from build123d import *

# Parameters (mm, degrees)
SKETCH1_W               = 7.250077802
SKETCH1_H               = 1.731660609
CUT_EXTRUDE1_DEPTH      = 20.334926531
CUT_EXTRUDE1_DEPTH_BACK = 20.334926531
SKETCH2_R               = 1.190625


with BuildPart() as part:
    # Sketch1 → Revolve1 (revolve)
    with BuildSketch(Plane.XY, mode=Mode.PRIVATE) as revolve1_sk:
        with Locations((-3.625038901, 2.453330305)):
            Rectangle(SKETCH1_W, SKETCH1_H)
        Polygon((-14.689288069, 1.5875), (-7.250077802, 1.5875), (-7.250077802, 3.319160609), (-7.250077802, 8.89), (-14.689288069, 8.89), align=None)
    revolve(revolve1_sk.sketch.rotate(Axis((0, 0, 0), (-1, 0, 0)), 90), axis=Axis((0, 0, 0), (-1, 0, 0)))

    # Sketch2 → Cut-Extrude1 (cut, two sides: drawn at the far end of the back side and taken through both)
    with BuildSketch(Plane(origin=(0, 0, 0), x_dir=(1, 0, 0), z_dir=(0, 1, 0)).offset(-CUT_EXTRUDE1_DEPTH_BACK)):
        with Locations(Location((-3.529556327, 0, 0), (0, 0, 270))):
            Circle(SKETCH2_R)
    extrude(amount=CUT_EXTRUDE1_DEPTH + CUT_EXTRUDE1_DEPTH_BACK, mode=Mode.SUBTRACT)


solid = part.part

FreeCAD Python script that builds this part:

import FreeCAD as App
import Part
import Sketcher

V = App.Vector
Q = App.Units.Quantity


def add_polygon(sketch, points):
    """Adds a closed chain of lines whose ends are joined by coincident constraints."""
    first, n = sketch.GeometryCount, len(points)
    for a, b in zip(points, points[1:] + points[:1]):
        sketch.addGeometry(Part.LineSegment(App.Vector(*a, 0), App.Vector(*b, 0)), False)
    for i in range(n):
        sketch.addConstraint(Sketcher.Constraint("Coincident", first + i, 2, first + (i + 1) % n, 1))

doc = App.newDocument("Part")
params = doc.addObject("Spreadsheet::Sheet", "Params")
for row, (alias, value) in enumerate([
    ("revolution_angle", "360 deg"),
    ("sketch2_diameter", "0.09375 in"),
], start=1):
    params.set(f"A{row}", alias)
    params.set(f"B{row}", "=" + value)
    params.setAlias(f"B{row}", alias)

body = doc.addObject("PartDesign::Body", "Body")

# Sketch on XY plane
sketch1 = body.newObject("Sketcher::SketchObject", "Sketch")
sketch1.AttachmentSupport = (doc.getObject("XY_Plane"), [""])
sketch1.MapMode = "FlatFace"
add_polygon(sketch1, [(-7.3, 1.6), (0, 1.6), (0, 3.3), (-7.3, 3.3), (-7.3, 8.9), (-14.7, 8.9), (-14.7, 1.6)])  # lines 0-6
sketch1.addConstraint(Sketcher.Constraint("Horizontal", 0))
sketch1.addConstraint(Sketcher.Constraint("Vertical", 1))
sketch1.addConstraint(Sketcher.Constraint("Horizontal", 2))
sketch1.addConstraint(Sketcher.Constraint("Vertical", 3))
sketch1.addConstraint(Sketcher.Constraint("Horizontal", 4))
sketch1.addConstraint(Sketcher.Constraint("Vertical", 5))
sketch1.addConstraint(Sketcher.Constraint("Horizontal", 6))
sketch1.addConstraint(Sketcher.Constraint("PointOnObject", 0, 2, -2))
sketch1.addConstraint(Sketcher.Constraint("Vertical", 3, 2, 6, 2))
sketch1.addConstraint(Sketcher.Constraint("DistanceY", -1, 1, 3, 2, Q("0.35 in")))
sketch1.addConstraint(Sketcher.Constraint("DistanceY", 5, 2, 5, 1, Q("0.2875 in")))
sketch1.addConstraint(Sketcher.Constraint("DistanceX", 4, 2, 4, 1, Q("7.43921 mm")))
sketch1.addConstraint(Sketcher.Constraint("DistanceY", 1, 1, 1, 2, Q("1.731661 mm")))
sketch1.addConstraint(Sketcher.Constraint("DistanceX", 0, 1, 0, 2, Q("7.250078 mm")))
revolution = body.newObject("PartDesign::Revolution", "Revolution")
revolution.Profile = sketch1
revolution.ReferenceAxis = (sketch1, ["H_Axis"])
revolution.setExpression("Angle", "Params.revolution_angle")

# Sketch on XZ plane
sketch2 = body.newObject("Sketcher::SketchObject", "Sketch001")
sketch2.AttachmentSupport = (doc.getObject("XZ_Plane"), [""])
sketch2.MapMode = "FlatFace"
sketch2.addGeometry(Part.Circle(V(-3.5, 0, 0), V(0, 0, 1), 1.2), False)
sketch2.addConstraint(Sketcher.Constraint("PointOnObject", 0, 3, -1))
sketch2.addConstraint(Sketcher.Constraint("Diameter", 0, Q("0.09375 in")))
sketch2.addConstraint(Sketcher.Constraint("DistanceX", 0, 3, -1, 1, Q("3.529556 mm")))
sketch2.setExpression("Constraints[1]", "Params.sketch2_diameter")
pocket1 = body.newObject("PartDesign::Pocket", "Pocket")
pocket1.Profile = sketch2
pocket1.Type = "ThroughAll"
pocket1.Midplane = True

doc.recompute()
